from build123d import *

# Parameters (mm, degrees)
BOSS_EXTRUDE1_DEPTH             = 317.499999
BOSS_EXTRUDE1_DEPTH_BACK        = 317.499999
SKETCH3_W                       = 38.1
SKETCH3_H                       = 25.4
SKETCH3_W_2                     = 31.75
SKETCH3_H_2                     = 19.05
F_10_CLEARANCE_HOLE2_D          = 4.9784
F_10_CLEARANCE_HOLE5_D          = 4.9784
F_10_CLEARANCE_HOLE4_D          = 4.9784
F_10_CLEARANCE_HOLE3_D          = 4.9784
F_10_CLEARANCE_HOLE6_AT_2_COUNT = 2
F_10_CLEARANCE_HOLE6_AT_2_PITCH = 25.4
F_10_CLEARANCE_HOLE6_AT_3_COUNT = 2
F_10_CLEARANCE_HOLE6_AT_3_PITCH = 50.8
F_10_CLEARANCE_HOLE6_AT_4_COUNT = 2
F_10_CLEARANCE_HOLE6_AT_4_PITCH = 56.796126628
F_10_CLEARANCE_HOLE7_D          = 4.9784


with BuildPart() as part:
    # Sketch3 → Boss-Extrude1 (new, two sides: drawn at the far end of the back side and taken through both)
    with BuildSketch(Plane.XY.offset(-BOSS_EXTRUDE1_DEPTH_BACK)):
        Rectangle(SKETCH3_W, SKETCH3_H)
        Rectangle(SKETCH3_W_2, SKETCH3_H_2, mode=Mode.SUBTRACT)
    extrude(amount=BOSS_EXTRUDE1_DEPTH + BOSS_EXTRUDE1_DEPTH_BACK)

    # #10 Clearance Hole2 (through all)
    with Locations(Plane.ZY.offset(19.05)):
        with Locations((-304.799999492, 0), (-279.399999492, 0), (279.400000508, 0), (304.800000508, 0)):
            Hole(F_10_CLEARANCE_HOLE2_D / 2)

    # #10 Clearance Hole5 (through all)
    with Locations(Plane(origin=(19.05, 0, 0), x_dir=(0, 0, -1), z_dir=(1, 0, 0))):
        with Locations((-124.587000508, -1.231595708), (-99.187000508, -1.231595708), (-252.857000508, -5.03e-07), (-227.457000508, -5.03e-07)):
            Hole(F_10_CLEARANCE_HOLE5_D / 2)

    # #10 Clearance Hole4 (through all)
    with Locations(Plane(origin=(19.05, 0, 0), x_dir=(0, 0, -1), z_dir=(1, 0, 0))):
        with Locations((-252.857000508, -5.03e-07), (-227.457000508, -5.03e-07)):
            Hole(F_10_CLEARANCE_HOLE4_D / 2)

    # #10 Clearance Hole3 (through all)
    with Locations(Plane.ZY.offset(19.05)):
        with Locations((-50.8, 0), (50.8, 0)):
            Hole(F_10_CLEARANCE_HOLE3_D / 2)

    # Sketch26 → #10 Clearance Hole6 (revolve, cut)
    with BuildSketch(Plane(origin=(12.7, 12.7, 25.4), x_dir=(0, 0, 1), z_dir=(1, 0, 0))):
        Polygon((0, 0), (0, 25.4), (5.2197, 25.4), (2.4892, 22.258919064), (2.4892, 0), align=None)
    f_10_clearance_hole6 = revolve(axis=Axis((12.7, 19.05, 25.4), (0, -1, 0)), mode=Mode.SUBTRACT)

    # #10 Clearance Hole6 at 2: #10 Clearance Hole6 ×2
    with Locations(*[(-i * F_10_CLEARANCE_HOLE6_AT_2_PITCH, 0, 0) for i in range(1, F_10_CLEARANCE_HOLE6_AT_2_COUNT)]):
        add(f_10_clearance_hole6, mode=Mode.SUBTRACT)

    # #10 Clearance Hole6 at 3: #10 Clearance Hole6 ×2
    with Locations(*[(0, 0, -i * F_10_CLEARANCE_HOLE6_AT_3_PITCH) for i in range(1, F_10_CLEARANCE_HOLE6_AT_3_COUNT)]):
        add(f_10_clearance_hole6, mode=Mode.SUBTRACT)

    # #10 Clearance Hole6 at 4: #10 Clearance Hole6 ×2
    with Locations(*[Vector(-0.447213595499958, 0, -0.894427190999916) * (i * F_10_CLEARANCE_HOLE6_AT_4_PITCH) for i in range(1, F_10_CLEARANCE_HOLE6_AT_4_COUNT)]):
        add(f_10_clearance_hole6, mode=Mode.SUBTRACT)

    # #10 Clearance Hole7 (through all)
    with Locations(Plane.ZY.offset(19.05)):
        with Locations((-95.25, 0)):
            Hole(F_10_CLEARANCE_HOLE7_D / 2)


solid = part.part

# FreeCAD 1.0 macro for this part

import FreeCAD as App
import Part
import Sketcher

V = App.Vector
Q = App.Units.Quantity


def add_polygon(sketch, points):
    """Adds a closed chain of lines whose ends are joined by coincident constraints."""
    first, n = sketch.GeometryCount, len(points)
    for a, b in zip(points, points[1:] + points[:1]):
        sketch.addGeometry(Part.LineSegment(App.Vector(*a, 0), App.Vector(*b, 0)), False)
    for i in range(n):
        sketch.addConstraint(Sketcher.Constraint("Coincident", first + i, 2, first + (i + 1) % n, 1))

doc = App.newDocument("Part")
params = doc.addObject("Spreadsheet::Sheet", "Params")
for row, (alias, value) in enumerate([
    ("sketch1_height", "1 in"),
    ("sketch1_width", "1.5 in"),
    ("sketch1_width2", "1.25 in"),
    ("sketch1_height2", "0.75 in"),
    ("pad1_length", "12.5 in"),
    ("pad1_length2", "12.5 in"),
    ("sketch2_diameter", "0.196 in"),
    ("hole_diameter", "0.196 in"),
    ("sketch3_diameter", "0.196 in"),
    ("hole2_diameter", "0.196 in"),
    ("sketch4_diameter", "0.196 in"),
    ("hole3_diameter", "0.196 in"),
    ("sketch5_diameter", "0.196 in"),
    ("hole4_diameter", "0.196 in"),
    ("sketch6_width", "1 in"),
    ("sketch6_height", "0.098 in"),
    ("groove_angle", "360 deg"),
    ("linearpattern_pitch", "1 in"),
    ("linearpattern2_pitch", "2 in"),
    ("linearpattern3_pitch", "56.796127 mm"),
    ("sketch7_diameter", "0.196 in"),
    ("hole5_diameter", "0.196 in"),
], start=1):
    params.set(f"A{row}", alias)
    params.set(f"B{row}", "=" + value)
    params.setAlias(f"B{row}", alias)

body = doc.addObject("PartDesign::Body", "Body")

# Sketch on XY plane
sketch1 = body.newObject("Sketcher::SketchObject", "Sketch")
sketch1.AttachmentSupport = (doc.getObject("XY_Plane"), [""])
sketch1.MapMode = "FlatFace"
add_polygon(sketch1, [(-19, 13), (-19, -13), (19, -13), (19, 13)])  # lines 0-3
add_polygon(sketch1, [(16, -10), (-16, -10), (-16, 10), (16, 10)])  # lines 4-7
sketch1.addConstraint([
    Sketcher.Constraint("Vertical", 0),
    Sketcher.Constraint("Horizontal", 1),
    Sketcher.Constraint("Vertical", 2),
    Sketcher.Constraint("Horizontal", 3),
    Sketcher.Constraint("Horizontal", 4),
    Sketcher.Constraint("Vertical", 5),
    Sketcher.Constraint("Horizontal", 6),
    Sketcher.Constraint("Vertical", 7),
    Sketcher.Constraint("Symmetric", 0, 2, 2, 2, -1, 1),
    Sketcher.Constraint("Symmetric", 4, 2, 6, 2, -1, 1),
    Sketcher.Constraint("DistanceY", 0, 2, 0, 1, Q("1 in")),
    Sketcher.Constraint("DistanceX", 1, 1, 1, 2, Q("1.5 in")),
    Sketcher.Constraint("DistanceX", 4, 2, 4, 1, Q("1.25 in")),
    Sketcher.Constraint("DistanceY", 5, 1, 5, 2, Q("0.75 in")),
])
sketch1.setExpression("Constraints[18]", "Params.sketch1_height")
sketch1.setExpression("Constraints[19]", "Params.sketch1_width")
sketch1.setExpression("Constraints[20]", "Params.sketch1_width2")
sketch1.setExpression("Constraints[21]", "Params.sketch1_height2")
pad1 = body.newObject("PartDesign::Pad", "Pad")
pad1.Profile = sketch1
pad1.Type = "TwoLengths"
pad1.setExpression("Length", "Params.pad1_length")
pad1.setExpression("Length2", "Params.pad1_length2")

# Sketch on YZ plane
sketch2 = body.newObject("Sketcher::SketchObject", "Sketch001")
sketch2.AttachmentSupport = (doc.getObject("YZ_Plane"), [""])
sketch2.MapMode = "FlatFace"
sketch2.AttachmentOffset = App.Placement(V(0, 0, -0.75 * 25.4), App.Rotation())
sketch2.addGeometry([
    Part.Circle(V(0, -304.8, 0), V(0, 0, 1), 2.5),
    Part.Circle(V(0, -279.4, 0), V(0, 0, 1), 2.5),
    Part.Circle(V(0, 279.4, 0), V(0, 0, 1), 2.5),
    Part.Circle(V(0, 304.8, 0), V(0, 0, 1), 2.5),
], False)
sketch2.addConstraint([
    Sketcher.Constraint("Equal", 0, 1),
    Sketcher.Constraint("Equal", 1, 2),
    Sketcher.Constraint("Equal", 2, 3),
    Sketcher.Constraint("Symmetric", 1, 3, 2, 3, -1, 1),
    Sketcher.Constraint("Symmetric", 0, 3, 3, 3, -1, 1),
    Sketcher.Constraint("PointOnObject", 0, 3, -2),
    Sketcher.Constraint("PointOnObject", 1, 3, -2),
    Sketcher.Constraint("Diameter", 0, Q("0.196 in")),
    Sketcher.Constraint("DistanceY", 0, 3, -1, 1, Q("12 in")),
    Sketcher.Constraint("DistanceY", 1, 3, -1, 1, Q("11 in")),
])
sketch2.setExpression("Constraints[7]", "Params.sketch2_diameter")
doc.recompute()
hole = body.newObject("PartDesign::Hole", "Hole")
hole.Profile = sketch2
hole.ThreadType = "None"
hole.setExpression("Diameter", "Params.hole_diameter")
hole.DepthType = "ThroughAll"
hole.Reversed = True

# Sketch on YZ plane
sketch3 = body.newObject("Sketcher::SketchObject", "Sketch002")
sketch3.AttachmentSupport = (doc.getObject("YZ_Plane"), [""])
sketch3.MapMode = "FlatFace"
sketch3.AttachmentOffset = App.Placement(V(0, 0, 0.75 * 25.4), App.Rotation())
sketch3.addGeometry([
    Part.Circle(V(-1.2, 124.6, 0), V(0, 0, 1), 2.5),
    Part.Circle(V(-1.2, 99.2, 0), V(0, 0, 1), 2.5),
    Part.Circle(V(0, 252.9, 0), V(0, 0, 1), 2.5),
    Part.Circle(V(0, 227.5, 0), V(0, 0, 1), 2.5),
], False)
sketch3.addConstraint([
    Sketcher.Constraint("Equal", 0, 1),
    Sketcher.Constraint("Equal", 1, 2),
    Sketcher.Constraint("Equal", 2, 3),
    Sketcher.Constraint("PointOnObject", 2, 3, -2),
    Sketcher.Constraint("PointOnObject", 3, 3, -2),
    Sketcher.Constraint("Vertical", 0, 3, 1, 3),
    Sketcher.Constraint("Diameter", 0, Q("0.196 in")),
    Sketcher.Constraint("DistanceY", 1, 3, 0, 3, Q("1 in")),
    Sketcher.Constraint("DistanceY", 3, 3, 2, 3, Q("1 in")),
    Sketcher.Constraint("DistanceY", 0, 3, 2, 3, Q("5.05 in")),
    Sketcher.Constraint("DistanceY", -1, 1, 0, 3, Q("4.905 in")),
    Sketcher.Constraint("DistanceX", 0, 3, -1, 1, Q("1.231596 mm")),
])
sketch3.setExpression("Constraints[6]", "Params.sketch3_diameter")
doc.recompute()
hole2 = body.newObject("PartDesign::Hole", "Hole001")
hole2.Profile = sketch3
hole2.ThreadType = "None"
hole2.setExpression("Diameter", "Params.hole2_diameter")
hole2.DepthType = "ThroughAll"

# Sketch on YZ plane
sketch4 = body.newObject("Sketcher::SketchObject", "Sketch003")
sketch4.AttachmentSupport = (doc.getObject("YZ_Plane"), [""])
sketch4.MapMode = "FlatFace"
sketch4.AttachmentOffset = App.Placement(V(0, 0, 0.75 * 25.4), App.Rotation())
sketch4.addGeometry([
    Part.Circle(V(0, 252.9, 0), V(0, 0, 1), 2.5),
    Part.Circle(V(0, 227.5, 0), V(0, 0, 1), 2.5),
], False)
sketch4.addConstraint([
    Sketcher.Constraint("Equal", 0, 1),
    Sketcher.Constraint("PointOnObject", 0, 3, -2),
    Sketcher.Constraint("PointOnObject", 1, 3, -2),
    Sketcher.Constraint("Diameter", 0, Q("0.196 in")),
    Sketcher.Constraint("DistanceY", 1, 3, 0, 3, Q("1 in")),
    Sketcher.Constraint("DistanceY", -1, 1, 0, 3, Q("9.955 in")),
])
sketch4.setExpression("Constraints[3]", "Params.sketch4_diameter")
doc.recompute()
hole3 = body.newObject("PartDesign::Hole", "Hole002")
hole3.Profile = sketch4
hole3.ThreadType = "None"
hole3.setExpression("Diameter", "Params.hole3_diameter")
hole3.DepthType = "ThroughAll"

# Sketch on YZ plane
sketch5 = body.newObject("Sketcher::SketchObject", "Sketch004")
sketch5.AttachmentSupport = (doc.getObject("YZ_Plane"), [""])
sketch5.MapMode = "FlatFace"
sketch5.AttachmentOffset = App.Placement(V(0, 0, -0.75 * 25.4), App.Rotation())
sketch5.addGeometry([
    Part.Circle(V(0, -50.8, 0), V(0, 0, 1), 2.5),
    Part.Circle(V(0, 50.8, 0), V(0, 0, 1), 2.5),
], False)
sketch5.addConstraint([
    Sketcher.Constraint("Equal", 0, 1),
    Sketcher.Constraint("Symmetric", 0, 3, 1, 3, -1, 1),
    Sketcher.Constraint("PointOnObject", 0, 3, -2),
    Sketcher.Constraint("Diameter", 0, Q("0.196 in")),
    Sketcher.Constraint("DistanceY", 0, 3, -1, 1, Q("2 in")),
])
sketch5.setExpression("Constraints[3]", "Params.sketch5_diameter")
doc.recompute()
hole4 = body.newObject("PartDesign::Hole", "Hole003")
hole4.Profile = sketch5
hole4.ThreadType = "None"
hole4.setExpression("Diameter", "Params.hole4_diameter")
hole4.DepthType = "ThroughAll"
hole4.Reversed = True

# Sketch on YZ plane
sketch6 = body.newObject("Sketcher::SketchObject", "Sketch005")
sketch6.AttachmentSupport = (doc.getObject("YZ_Plane"), [""])
sketch6.MapMode = "FlatFace"
sketch6.AttachmentOffset = App.Placement(V(0, 0, 0.5 * 25.4), App.Rotation())
add_polygon(sketch6, [(-12.7, 25.4), (12.7, 25.4), (12.7, 27.9), (-9.6, 27.9), (-12.7, 30.6)])  # lines 0-4
sketch6.addGeometry(Part.LineSegment(V(12.7, 25.4, 0), V(-12.7, 25.4, 0)), True)  # axis
sketch6.addConstraint([
    Sketcher.Constraint("Horizontal", 0),
    Sketcher.Constraint("Vertical", 1),
    Sketcher.Constraint("Horizontal", 2),
    Sketcher.Constraint("Vertical", 4),
    Sketcher.Constraint("Horizontal", 5),
    Sketcher.Constraint("Coincident", 5, 1, 0, 2),
    Sketcher.Constraint("Vertical", 3, 2, 5, 2),
    Sketcher.Constraint("DistanceX", 0, 1, 0, 2, Q("1 in")),
    Sketcher.Constraint("DistanceY", -1, 1, 0, 2, Q("1 in")),
    Sketcher.Constraint("Angle", 3, Q("139 deg")),
    Sketcher.Constraint("DistanceX", -1, 1, 0, 2, Q("0.5 in")),
    Sketcher.Constraint("DistanceY", 1, 1, 1, 2, Q("0.098 in")),
    Sketcher.Constraint("DistanceY", 4, 2, 4, 1, Q("0.2055 in")),
])
sketch6.setExpression("Constraints[12]", "Params.sketch6_width")
sketch6.setExpression("Constraints[16]", "Params.sketch6_height")
groove = body.newObject("PartDesign::Groove", "Groove")
groove.Profile = sketch6
groove.ReferenceAxis = (sketch6, ["Axis0"])
groove.setExpression("Angle", "Params.groove_angle")
doc.recompute()

linearpattern = body.newObject("PartDesign::LinearPattern", "LinearPattern")
linearpattern.Originals = [groove]
linearpattern.Direction = (doc.getObject("X_Axis"), [""])
linearpattern.Mode = "offset"
linearpattern.setExpression("Offset", "Params.linearpattern_pitch")
linearpattern.Occurrences = 2
linearpattern.Reversed = True
body.Tip = linearpattern
doc.recompute()

linearpattern2 = body.newObject("PartDesign::LinearPattern", "LinearPattern001")
linearpattern2.Originals = [groove]
linearpattern2.Direction = (doc.getObject("Z_Axis"), [""])
linearpattern2.Mode = "offset"
linearpattern2.setExpression("Offset", "Params.linearpattern2_pitch")
linearpattern2.Occurrences = 2
linearpattern2.Reversed = True
body.Tip = linearpattern2
doc.recompute()

datumline = body.newObject("PartDesign::Line", "DatumLine")
datumline.Placement = App.Placement(V(0, 0, 0), App.Rotation(V(0, 0, 1), V(-0.447213595, 0, -0.894427191)))
linearpattern3 = body.newObject("PartDesign::LinearPattern", "LinearPattern002")
linearpattern3.Originals = [groove]
linearpattern3.Direction = (datumline, [""])
linearpattern3.Mode = "offset"
linearpattern3.setExpression("Offset", "Params.linearpattern3_pitch")
linearpattern3.Occurrences = 2
body.Tip = linearpattern3

# Sketch on YZ plane
sketch7 = body.newObject("Sketcher::SketchObject", "Sketch006")
sketch7.AttachmentSupport = (doc.getObject("YZ_Plane"), [""])
sketch7.MapMode = "FlatFace"
sketch7.AttachmentOffset = App.Placement(V(0, 0, -0.75 * 25.4), App.Rotation())
sketch7.addGeometry(Part.Circle(V(0, -95.2, 0), V(0, 0, 1), 2.5), False)
sketch7.addConstraint([
    Sketcher.Constraint("PointOnObject", 0, 3, -2),
    Sketcher.Constraint("Diameter", 0, Q("0.196 in")),
    Sketcher.Constraint("DistanceY", 0, 3, -1, 1, Q("3.75 in")),
])
sketch7.setExpression("Constraints[1]", "Params.sketch7_diameter")
doc.recompute()
hole5 = body.newObject("PartDesign::Hole", "Hole004")
hole5.Profile = sketch7
hole5.ThreadType = "None"
hole5.setExpression("Diameter", "Params.hole5_diameter")
hole5.DepthType = "ThroughAll"
hole5.Reversed = True

doc.recompute()
